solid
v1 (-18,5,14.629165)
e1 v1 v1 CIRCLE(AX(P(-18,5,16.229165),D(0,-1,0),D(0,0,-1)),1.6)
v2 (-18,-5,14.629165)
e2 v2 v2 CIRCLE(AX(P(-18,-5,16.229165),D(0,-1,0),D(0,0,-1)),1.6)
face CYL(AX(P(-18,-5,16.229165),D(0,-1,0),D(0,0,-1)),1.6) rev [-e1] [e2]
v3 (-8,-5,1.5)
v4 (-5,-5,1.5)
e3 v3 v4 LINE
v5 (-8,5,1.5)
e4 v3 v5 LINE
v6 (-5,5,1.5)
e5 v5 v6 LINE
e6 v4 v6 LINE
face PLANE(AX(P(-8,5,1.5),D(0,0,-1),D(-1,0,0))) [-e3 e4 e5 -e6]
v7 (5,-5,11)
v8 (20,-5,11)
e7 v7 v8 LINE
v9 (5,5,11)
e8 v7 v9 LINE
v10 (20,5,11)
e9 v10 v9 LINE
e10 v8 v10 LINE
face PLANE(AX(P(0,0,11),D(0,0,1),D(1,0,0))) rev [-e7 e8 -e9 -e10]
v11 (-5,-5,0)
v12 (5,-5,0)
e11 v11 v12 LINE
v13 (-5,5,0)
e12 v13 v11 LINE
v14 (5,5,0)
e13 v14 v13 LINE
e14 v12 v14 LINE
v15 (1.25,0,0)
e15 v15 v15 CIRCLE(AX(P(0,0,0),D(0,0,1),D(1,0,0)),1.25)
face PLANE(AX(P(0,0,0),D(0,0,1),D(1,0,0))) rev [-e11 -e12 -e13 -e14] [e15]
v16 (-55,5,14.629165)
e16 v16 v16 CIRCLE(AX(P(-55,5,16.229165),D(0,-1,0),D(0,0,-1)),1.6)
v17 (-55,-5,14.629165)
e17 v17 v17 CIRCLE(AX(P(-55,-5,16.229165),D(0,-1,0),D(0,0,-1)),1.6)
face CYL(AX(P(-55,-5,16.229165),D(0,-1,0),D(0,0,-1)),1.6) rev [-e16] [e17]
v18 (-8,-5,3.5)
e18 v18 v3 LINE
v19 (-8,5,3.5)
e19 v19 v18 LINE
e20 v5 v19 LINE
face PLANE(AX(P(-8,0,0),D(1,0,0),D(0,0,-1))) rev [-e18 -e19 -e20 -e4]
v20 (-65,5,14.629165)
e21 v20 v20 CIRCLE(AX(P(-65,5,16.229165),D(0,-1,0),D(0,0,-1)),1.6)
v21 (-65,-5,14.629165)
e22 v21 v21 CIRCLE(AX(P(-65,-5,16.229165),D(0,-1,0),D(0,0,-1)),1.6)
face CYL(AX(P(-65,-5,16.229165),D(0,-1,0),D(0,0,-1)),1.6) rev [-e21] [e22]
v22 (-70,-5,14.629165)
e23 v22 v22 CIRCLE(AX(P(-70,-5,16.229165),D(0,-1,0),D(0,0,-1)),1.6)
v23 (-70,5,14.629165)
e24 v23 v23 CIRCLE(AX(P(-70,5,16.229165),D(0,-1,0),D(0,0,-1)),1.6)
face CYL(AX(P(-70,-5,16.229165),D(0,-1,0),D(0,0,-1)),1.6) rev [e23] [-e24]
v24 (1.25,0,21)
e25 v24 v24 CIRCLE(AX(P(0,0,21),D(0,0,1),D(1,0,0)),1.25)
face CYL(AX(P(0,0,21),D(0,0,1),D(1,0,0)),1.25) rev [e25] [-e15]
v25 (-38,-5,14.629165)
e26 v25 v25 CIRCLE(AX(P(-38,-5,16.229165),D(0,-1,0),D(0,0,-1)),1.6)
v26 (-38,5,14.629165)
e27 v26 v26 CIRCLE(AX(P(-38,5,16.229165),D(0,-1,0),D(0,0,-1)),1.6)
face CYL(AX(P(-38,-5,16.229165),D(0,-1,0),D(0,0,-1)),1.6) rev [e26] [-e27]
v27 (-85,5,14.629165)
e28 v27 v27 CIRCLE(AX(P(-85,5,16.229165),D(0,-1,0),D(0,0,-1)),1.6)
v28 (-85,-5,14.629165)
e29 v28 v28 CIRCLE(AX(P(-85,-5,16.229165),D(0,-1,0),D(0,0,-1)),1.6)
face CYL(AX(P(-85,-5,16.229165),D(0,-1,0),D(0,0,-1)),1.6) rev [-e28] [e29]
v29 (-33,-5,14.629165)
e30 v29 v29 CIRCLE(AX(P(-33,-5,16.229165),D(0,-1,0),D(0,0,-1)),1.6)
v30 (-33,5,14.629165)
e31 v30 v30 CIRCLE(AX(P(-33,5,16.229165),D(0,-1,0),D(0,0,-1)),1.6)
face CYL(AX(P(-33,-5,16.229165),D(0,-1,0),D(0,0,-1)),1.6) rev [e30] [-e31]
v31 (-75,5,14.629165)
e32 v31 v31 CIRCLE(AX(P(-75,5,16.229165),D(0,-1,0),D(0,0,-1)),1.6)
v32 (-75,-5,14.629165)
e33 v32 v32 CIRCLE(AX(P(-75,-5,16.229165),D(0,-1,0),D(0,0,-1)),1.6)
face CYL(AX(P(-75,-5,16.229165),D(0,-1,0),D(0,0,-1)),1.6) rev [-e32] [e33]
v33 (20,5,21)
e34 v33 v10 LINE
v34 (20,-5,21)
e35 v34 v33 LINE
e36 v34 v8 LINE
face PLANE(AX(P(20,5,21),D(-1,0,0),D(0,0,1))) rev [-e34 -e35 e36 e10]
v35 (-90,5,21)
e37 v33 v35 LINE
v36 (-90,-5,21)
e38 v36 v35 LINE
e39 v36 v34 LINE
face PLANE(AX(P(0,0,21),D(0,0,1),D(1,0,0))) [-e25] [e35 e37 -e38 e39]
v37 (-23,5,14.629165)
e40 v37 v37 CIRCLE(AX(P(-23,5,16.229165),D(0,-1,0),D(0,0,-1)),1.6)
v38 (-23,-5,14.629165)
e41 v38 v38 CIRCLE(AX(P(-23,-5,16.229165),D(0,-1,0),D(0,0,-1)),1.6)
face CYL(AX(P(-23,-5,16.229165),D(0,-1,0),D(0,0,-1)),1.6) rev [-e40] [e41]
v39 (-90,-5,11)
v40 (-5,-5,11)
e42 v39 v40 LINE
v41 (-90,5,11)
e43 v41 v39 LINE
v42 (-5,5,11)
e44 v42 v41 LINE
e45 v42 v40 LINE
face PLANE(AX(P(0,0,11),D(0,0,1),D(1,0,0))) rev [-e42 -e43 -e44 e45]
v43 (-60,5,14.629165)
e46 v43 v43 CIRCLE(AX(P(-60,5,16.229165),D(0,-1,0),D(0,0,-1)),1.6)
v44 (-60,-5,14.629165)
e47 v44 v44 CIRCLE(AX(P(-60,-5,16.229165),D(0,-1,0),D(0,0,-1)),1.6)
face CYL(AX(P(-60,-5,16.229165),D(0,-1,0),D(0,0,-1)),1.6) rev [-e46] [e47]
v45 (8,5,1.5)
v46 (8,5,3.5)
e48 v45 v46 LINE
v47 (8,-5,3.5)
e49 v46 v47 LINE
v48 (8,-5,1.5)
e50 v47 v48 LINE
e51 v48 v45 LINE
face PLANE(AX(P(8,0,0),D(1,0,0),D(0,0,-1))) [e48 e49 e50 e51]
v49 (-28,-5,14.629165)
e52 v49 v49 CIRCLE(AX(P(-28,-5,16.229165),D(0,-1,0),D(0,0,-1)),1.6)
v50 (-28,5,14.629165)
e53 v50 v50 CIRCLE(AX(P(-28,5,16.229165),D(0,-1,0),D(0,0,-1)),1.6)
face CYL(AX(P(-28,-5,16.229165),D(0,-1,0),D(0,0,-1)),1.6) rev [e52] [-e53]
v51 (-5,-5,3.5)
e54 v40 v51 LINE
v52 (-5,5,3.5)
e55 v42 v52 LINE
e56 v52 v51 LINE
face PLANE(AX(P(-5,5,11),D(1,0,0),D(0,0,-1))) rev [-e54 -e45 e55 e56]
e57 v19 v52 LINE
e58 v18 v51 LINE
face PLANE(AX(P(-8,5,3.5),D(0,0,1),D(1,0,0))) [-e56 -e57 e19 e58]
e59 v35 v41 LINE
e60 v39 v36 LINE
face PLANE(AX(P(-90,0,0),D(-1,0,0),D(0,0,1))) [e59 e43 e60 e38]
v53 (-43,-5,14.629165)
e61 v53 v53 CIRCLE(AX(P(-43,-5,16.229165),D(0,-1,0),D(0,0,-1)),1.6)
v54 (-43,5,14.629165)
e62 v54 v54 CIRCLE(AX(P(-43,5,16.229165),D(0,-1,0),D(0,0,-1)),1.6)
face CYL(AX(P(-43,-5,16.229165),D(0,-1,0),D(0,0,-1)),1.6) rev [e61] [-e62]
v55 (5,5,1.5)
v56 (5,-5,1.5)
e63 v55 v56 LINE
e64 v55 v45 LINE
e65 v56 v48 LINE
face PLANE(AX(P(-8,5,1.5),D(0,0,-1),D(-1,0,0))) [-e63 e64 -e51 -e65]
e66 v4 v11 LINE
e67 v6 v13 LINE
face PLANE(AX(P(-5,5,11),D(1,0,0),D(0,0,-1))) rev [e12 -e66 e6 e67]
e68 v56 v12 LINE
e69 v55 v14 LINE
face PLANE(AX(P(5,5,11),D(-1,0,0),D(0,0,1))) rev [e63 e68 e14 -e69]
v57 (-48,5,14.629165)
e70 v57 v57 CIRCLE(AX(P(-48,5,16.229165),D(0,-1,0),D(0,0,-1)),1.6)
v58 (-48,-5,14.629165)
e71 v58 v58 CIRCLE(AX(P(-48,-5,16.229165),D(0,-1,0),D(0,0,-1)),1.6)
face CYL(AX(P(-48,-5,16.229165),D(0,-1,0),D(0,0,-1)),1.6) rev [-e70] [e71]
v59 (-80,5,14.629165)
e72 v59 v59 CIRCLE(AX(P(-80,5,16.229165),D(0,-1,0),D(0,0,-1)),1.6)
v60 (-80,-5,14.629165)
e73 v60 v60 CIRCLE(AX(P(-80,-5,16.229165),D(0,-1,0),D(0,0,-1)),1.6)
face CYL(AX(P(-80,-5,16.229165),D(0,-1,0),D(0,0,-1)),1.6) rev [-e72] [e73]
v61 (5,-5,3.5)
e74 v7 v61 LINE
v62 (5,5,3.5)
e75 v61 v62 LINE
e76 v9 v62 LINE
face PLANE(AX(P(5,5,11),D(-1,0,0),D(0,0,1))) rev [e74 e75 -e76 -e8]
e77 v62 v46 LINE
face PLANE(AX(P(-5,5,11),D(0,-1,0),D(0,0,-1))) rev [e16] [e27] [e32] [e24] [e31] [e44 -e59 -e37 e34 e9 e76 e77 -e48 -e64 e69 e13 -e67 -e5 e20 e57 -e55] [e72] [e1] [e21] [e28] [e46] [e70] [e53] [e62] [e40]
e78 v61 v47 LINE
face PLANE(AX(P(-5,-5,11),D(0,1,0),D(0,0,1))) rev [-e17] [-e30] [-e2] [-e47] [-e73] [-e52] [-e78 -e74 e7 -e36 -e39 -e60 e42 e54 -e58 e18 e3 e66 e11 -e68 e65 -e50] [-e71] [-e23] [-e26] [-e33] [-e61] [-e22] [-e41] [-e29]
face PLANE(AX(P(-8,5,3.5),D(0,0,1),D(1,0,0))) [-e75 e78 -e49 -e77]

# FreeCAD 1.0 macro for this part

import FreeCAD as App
import Part
import Sketcher


def add_polygon(sketch, points):
    """Adds a closed chain of lines whose ends are joined by coincident constraints."""
    first, n = sketch.GeometryCount, len(points)
    for a, b in zip(points, points[1:] + points[:1]):
        sketch.addGeometry(Part.LineSegment(App.Vector(*a, 0), App.Vector(*b, 0)), False)
    for i in range(n):
        sketch.addConstraint(Sketcher.Constraint("Coincident", first + i, 2, first + (i + 1) % n, 1))

doc = App.newDocument("Part")
body = doc.addObject("PartDesign::Body", "Body")

sketch1 = doc.addObject("Sketcher::SketchObject", "Sketch")
body.addObject(sketch1)
sketch1.AttachmentSupport = (doc.XY_Plane, [""])
sketch1.MapMode = "FlatFace"
add_polygon(sketch1, [(-5, 5), (-5, -5), (5, -5), (5, 5)])
sketch1.addConstraint(Sketcher.Constraint("Vertical", 0))
sketch1.addConstraint(Sketcher.Constraint("Horizontal", 1))
sketch1.addConstraint(Sketcher.Constraint("Vertical", 2))
sketch1.addConstraint(Sketcher.Constraint("Horizontal", 3))
sketch1.addConstraint(Sketcher.Constraint("Symmetric", 0, 2, 2, 2, -1, 1))
sketch1.addConstraint(Sketcher.Constraint("Equal", 3, 0))
sketch1.addConstraint(Sketcher.Constraint("DistanceX", 1, 1, 1, 2, 10.0))
pad1 = doc.addObject("PartDesign::Pad", "Pad")
body.addObject(pad1)
pad1.Profile = sketch1
pad1.Length = 11

sketch2 = doc.addObject("Sketcher::SketchObject", "Sketch001")
body.addObject(sketch2)
sketch2.AttachmentSupport = (doc.YZ_Plane, [""])
sketch2.MapMode = "FlatFace"
sketch2.AttachmentOffset = App.Placement(App.Vector(0, 0, 5), App.Rotation())
add_polygon(sketch2, [(5, 3.5), (-5, 3.5), (-5, 1.5), (5, 1.5)])
sketch2.addConstraint(Sketcher.Constraint("Horizontal", 0))
sketch2.addConstraint(Sketcher.Constraint("Vertical", 1))
sketch2.addConstraint(Sketcher.Constraint("Horizontal", 2))
sketch2.addConstraint(Sketcher.Constraint("Vertical", 3))
sketch2.addConstraint(Sketcher.Constraint("DistanceX", 0, 2, 0, 1, 10.0))
sketch2.addConstraint(Sketcher.Constraint("DistanceY", 1, 2, 1, 1, 2.0))
sketch2.addConstraint(Sketcher.Constraint("DistanceX", 0, 2, -1, 1, 5.0))
sketch2.addConstraint(Sketcher.Constraint("DistanceY", -1, 1, 0, 2, 3.5))
pad2 = doc.addObject("PartDesign::Pad", "Pad001")
body.addObject(pad2)
pad2.Profile = sketch2
pad2.Type = "TwoLengths"
pad2.Length = 3
pad2.Length2 = 13

sketch3 = doc.addObject("Sketcher::SketchObject", "Sketch002")
body.addObject(sketch3)
sketch3.AttachmentSupport = (doc.XY_Plane, [""])
sketch3.MapMode = "FlatFace"
sketch3.AttachmentOffset = App.Placement(App.Vector(0, 0, 11), App.Rotation())
add_polygon(sketch3, [(-20, 5), (-20, -5), (20, -5), (20, 5)])
sketch3.addConstraint(Sketcher.Constraint("Vertical", 0))
sketch3.addConstraint(Sketcher.Constraint("Horizontal", 1))
sketch3.addConstraint(Sketcher.Constraint("Vertical", 2))
sketch3.addConstraint(Sketcher.Constraint("Horizontal", 3))
sketch3.addConstraint(Sketcher.Constraint("Symmetric", 0, 2, 2, 2, -1, 1))
sketch3.addConstraint(Sketcher.Constraint("DistanceX", 1, 1, 1, 2, 40.0))
sketch3.addConstraint(Sketcher.Constraint("DistanceY", 0, 2, 0, 1, 10.0))
pad3 = doc.addObject("PartDesign::Pad", "Pad002")
body.addObject(pad3)
pad3.Profile = sketch3
pad3.Length = 10

sketch4 = doc.addObject("Sketcher::SketchObject", "Sketch003")
body.addObject(sketch4)
sketch4.AttachmentSupport = (doc.YZ_Plane, [""])
sketch4.MapMode = "FlatFace"
sketch4.AttachmentOffset = App.Placement(App.Vector(0, 0, -20), App.Rotation())
add_polygon(sketch4, [(5, 11), (-5, 11), (-5, 21), (5, 21)])
sketch4.addConstraint(Sketcher.Constraint("Horizontal", 0))
sketch4.addConstraint(Sketcher.Constraint("Vertical", 1))
sketch4.addConstraint(Sketcher.Constraint("Horizontal", 2))
sketch4.addConstraint(Sketcher.Constraint("Vertical", 3))
sketch4.addConstraint(Sketcher.Constraint("Equal", 2, 1))
sketch4.addConstraint(Sketcher.Constraint("DistanceX", 0, 2, 0, 1, 10.0))
sketch4.addConstraint(Sketcher.Constraint("DistanceX", 0, 2, -1, 1, 5.0))
sketch4.addConstraint(Sketcher.Constraint("DistanceY", -1, 1, 0, 2, 11.0))
pad4 = doc.addObject("PartDesign::Pad", "Pad003")
body.addObject(pad4)
pad4.Profile = sketch4
pad4.Length = 70
pad4.Reversed = True

sketch5 = doc.addObject("Sketcher::SketchObject", "Sketch004")
body.addObject(sketch5)
sketch5.AttachmentSupport = (doc.XY_Plane, [""])
sketch5.MapMode = "FlatFace"
sketch5.AttachmentOffset = App.Placement(App.Vector(0, 0, 21), App.Rotation())
sketch5.addGeometry(Part.Circle(App.Vector(0, 0, 0), App.Vector(0, 0, 1), 1.2), False)
sketch5.addConstraint(Sketcher.Constraint("Coincident", 0, 3, -1, 1))
sketch5.addConstraint(Sketcher.Constraint("Diameter", 0, 2.5))
doc.recompute()
hole = doc.addObject("PartDesign::Hole", "Hole")
body.addObject(hole)
hole.Profile = sketch5
hole.ThreadType = "None"
hole.Diameter = 2.5
hole.DepthType = "ThroughAll"

sketch6 = doc.addObject("Sketcher::SketchObject", "Sketch005")
body.addObject(sketch6)
sketch6.AttachmentSupport = (doc.XZ_Plane, [""])
sketch6.MapMode = "FlatFace"
sketch6.AttachmentOffset = App.Placement(App.Vector(0, 0, 5), App.Rotation())
sketch6.addGeometry(Part.Circle(App.Vector(-85, 16.2, 0), App.Vector(0, 0, 1), 1.6), False)
sketch6.addGeometry(Part.Circle(App.Vector(-80, 16.2, 0), App.Vector(0, 0, 1), 1.6), False)
sketch6.addGeometry(Part.Circle(App.Vector(-48, 16.2, 0), App.Vector(0, 0, 1), 1.6), False)
sketch6.addGeometry(Part.Circle(App.Vector(-43, 16.2, 0), App.Vector(0, 0, 1), 1.6), False)
sketch6.addGeometry(Part.Circle(App.Vector(-75, 16.2, 0), App.Vector(0, 0, 1), 1.6), False)
sketch6.addGeometry(Part.Circle(App.Vector(-70, 16.2, 0), App.Vector(0, 0, 1), 1.6), False)
sketch6.addGeometry(Part.Circle(App.Vector(-65, 16.2, 0), App.Vector(0, 0, 1), 1.6), False)
sketch6.addGeometry(Part.Circle(App.Vector(-60, 16.2, 0), App.Vector(0, 0, 1), 1.6), False)
sketch6.addGeometry(Part.Circle(App.Vector(-38, 16.2, 0), App.Vector(0, 0, 1), 1.6), False)
sketch6.addGeometry(Part.Circle(App.Vector(-33, 16.2, 0), App.Vector(0, 0, 1), 1.6), False)
sketch6.addGeometry(Part.Circle(App.Vector(-28, 16.2, 0), App.Vector(0, 0, 1), 1.6), False)
sketch6.addGeometry(Part.Circle(App.Vector(-23, 16.2, 0), App.Vector(0, 0, 1), 1.6), False)
sketch6.addGeometry(Part.Circle(App.Vector(-55, 16.2, 0), App.Vector(0, 0, 1), 1.6), False)
sketch6.addGeometry(Part.Circle(App.Vector(-18, 16.2, 0), App.Vector(0, 0, 1), 1.6), False)
sketch6.addConstraint(Sketcher.Constraint("Equal", 0, 1))
sketch6.addConstraint(Sketcher.Constraint("Equal", 1, 2))
sketch6.addConstraint(Sketcher.Constraint("Equal", 2, 3))
sketch6.addConstraint(Sketcher.Constraint("Equal", 3, 4))
sketch6.addConstraint(Sketcher.Constraint("Equal", 4, 5))
sketch6.addConstraint(Sketcher.Constraint("Equal", 5, 6))
sketch6.addConstraint(Sketcher.Constraint("Equal", 6, 7))
sketch6.addConstraint(Sketcher.Constraint("Equal", 7, 8))
sketch6.addConstraint(Sketcher.Constraint("Equal", 8, 9))
sketch6.addConstraint(Sketcher.Constraint("Equal", 9, 10))
sketch6.addConstraint(Sketcher.Constraint("Equal", 10, 11))
sketch6.addConstraint(Sketcher.Constraint("Equal", 11, 12))
sketch6.addConstraint(Sketcher.Constraint("Equal", 12, 13))
sketch6.addConstraint(Sketcher.Constraint("Horizontal", 0, 3, 1, 3))
sketch6.addConstraint(Sketcher.Constraint("Horizontal", 1, 3, 2, 3))
sketch6.addConstraint(Sketcher.Constraint("Horizontal", 2, 3, 3, 3))
sketch6.addConstraint(Sketcher.Constraint("Horizontal", 3, 3, 4, 3))
sketch6.addConstraint(Sketcher.Constraint("Horizontal", 4, 3, 5, 3))
sketch6.addConstraint(Sketcher.Constraint("Horizontal", 5, 3, 6, 3))
sketch6.addConstraint(Sketcher.Constraint("Horizontal", 6, 3, 7, 3))
sketch6.addConstraint(Sketcher.Constraint("Horizontal", 7, 3, 8, 3))
sketch6.addConstraint(Sketcher.Constraint("Horizontal", 8, 3, 9, 3))
sketch6.addConstraint(Sketcher.Constraint("Horizontal", 9, 3, 10, 3))
sketch6.addConstraint(Sketcher.Constraint("Horizontal", 10, 3, 11, 3))
sketch6.addConstraint(Sketcher.Constraint("Horizontal", 11, 3, 12, 3))
sketch6.addConstraint(Sketcher.Constraint("Horizontal", 12, 3, 13, 3))
sketch6.addConstraint(Sketcher.Constraint("Diameter", 0, 3.2))
sketch6.addConstraint(Sketcher.Constraint("DistanceX", 0, 3, -1, 1, 85.0))
sketch6.addConstraint(Sketcher.Constraint("DistanceX", 1, 3, -1, 1, 80.0))
sketch6.addConstraint(Sketcher.Constraint("DistanceX", 2, 3, -1, 1, 48.0))
sketch6.addConstraint(Sketcher.Constraint("DistanceX", 3, 3, -1, 1, 43.0))
sketch6.addConstraint(Sketcher.Constraint("DistanceX", 4, 3, -1, 1, 75.0))
sketch6.addConstraint(Sketcher.Constraint("DistanceX", 5, 3, -1, 1, 70.0))
sketch6.addConstraint(Sketcher.Constraint("DistanceX", 6, 3, -1, 1, 65.0))
sketch6.addConstraint(Sketcher.Constraint("DistanceX", 7, 3, -1, 1, 60.0))
sketch6.addConstraint(Sketcher.Constraint("DistanceX", 8, 3, -1, 1, 38.0))
sketch6.addConstraint(Sketcher.Constraint("DistanceX", 9, 3, -1, 1, 33.0))
sketch6.addConstraint(Sketcher.Constraint("DistanceX", 10, 3, -1, 1, 28.0))
sketch6.addConstraint(Sketcher.Constraint("DistanceX", 11, 3, -1, 1, 23.0))
sketch6.addConstraint(Sketcher.Constraint("DistanceX", 12, 3, -1, 1, 55.0))
sketch6.addConstraint(Sketcher.Constraint("DistanceX", 13, 3, -1, 1, 18.0))
sketch6.addConstraint(Sketcher.Constraint("DistanceY", -1, 1, 0, 3, 16.229165))
doc.recompute()
hole2 = doc.addObject("PartDesign::Hole", "Hole001")
body.addObject(hole2)
hole2.Profile = sketch6
hole2.ThreadType = "None"
hole2.Diameter = 3.2
hole2.DepthType = "ThroughAll"

doc.recompute()
